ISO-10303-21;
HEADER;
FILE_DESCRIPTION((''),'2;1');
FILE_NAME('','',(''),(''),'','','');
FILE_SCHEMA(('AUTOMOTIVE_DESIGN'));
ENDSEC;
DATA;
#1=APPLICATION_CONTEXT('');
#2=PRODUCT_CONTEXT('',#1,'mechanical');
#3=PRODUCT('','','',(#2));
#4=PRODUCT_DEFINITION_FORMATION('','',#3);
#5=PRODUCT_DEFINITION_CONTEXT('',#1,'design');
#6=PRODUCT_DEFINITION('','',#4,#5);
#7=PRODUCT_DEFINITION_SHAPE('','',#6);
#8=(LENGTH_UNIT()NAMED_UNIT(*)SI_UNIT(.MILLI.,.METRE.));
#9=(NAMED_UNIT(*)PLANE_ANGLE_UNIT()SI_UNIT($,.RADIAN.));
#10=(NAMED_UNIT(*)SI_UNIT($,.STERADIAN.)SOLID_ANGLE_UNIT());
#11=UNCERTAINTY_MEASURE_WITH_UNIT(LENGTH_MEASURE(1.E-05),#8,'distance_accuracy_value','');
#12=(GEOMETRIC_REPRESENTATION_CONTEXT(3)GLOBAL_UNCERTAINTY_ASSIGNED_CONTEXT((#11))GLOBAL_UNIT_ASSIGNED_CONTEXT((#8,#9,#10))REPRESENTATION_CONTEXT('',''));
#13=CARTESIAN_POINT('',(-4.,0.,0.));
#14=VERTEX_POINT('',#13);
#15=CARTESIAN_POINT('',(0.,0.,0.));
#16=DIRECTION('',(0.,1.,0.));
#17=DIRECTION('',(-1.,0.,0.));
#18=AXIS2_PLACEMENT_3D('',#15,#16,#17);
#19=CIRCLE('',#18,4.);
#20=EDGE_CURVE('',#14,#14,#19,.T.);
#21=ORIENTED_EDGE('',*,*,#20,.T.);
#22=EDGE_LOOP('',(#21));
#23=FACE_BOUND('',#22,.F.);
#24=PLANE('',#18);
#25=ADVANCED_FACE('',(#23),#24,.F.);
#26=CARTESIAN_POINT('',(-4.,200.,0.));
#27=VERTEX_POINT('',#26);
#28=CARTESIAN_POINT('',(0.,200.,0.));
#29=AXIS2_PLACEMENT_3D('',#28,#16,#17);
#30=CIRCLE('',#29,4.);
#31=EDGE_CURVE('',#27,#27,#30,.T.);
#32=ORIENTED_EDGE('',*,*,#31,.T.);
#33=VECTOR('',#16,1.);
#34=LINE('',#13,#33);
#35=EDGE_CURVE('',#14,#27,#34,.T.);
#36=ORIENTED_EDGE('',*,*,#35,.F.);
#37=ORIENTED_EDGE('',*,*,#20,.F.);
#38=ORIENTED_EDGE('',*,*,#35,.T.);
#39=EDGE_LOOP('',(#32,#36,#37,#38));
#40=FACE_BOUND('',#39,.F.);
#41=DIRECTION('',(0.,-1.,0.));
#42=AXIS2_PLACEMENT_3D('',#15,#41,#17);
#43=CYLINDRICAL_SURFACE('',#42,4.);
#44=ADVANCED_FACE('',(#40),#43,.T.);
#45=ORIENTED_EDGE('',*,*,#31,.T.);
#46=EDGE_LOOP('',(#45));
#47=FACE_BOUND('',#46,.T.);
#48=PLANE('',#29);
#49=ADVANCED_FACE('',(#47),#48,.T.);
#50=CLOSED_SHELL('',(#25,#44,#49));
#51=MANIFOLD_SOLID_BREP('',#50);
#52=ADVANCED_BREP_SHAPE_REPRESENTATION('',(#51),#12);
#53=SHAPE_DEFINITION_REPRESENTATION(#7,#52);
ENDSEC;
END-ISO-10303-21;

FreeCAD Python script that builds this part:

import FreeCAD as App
import Part
import Sketcher
Q = App.Units.Quantity

doc = App.newDocument("Part")
body = doc.addObject("PartDesign::Body", "Body")

# Sketch on XZ plane
sketch1 = body.newObject("Sketcher::SketchObject", "Sketch")
sketch1.AttachmentSupport = (doc.getObject("XZ_Plane"), [""])
sketch1.MapMode = "FlatFace"
sketch1.addGeometry(Part.Circle(App.Vector(0, 0, 0), App.Vector(0, 0, 1), 4), False)
sketch1.addConstraint(Sketcher.Constraint("Coincident", 0, 3, -1, 1))
sketch1.addConstraint(Sketcher.Constraint("Diameter", 0, Q("8 mm")))
pad1 = body.newObject("PartDesign::Pad", "Pad")
pad1.Profile = sketch1
pad1.Length = 200
pad1.Reversed = True

doc.recompute()
